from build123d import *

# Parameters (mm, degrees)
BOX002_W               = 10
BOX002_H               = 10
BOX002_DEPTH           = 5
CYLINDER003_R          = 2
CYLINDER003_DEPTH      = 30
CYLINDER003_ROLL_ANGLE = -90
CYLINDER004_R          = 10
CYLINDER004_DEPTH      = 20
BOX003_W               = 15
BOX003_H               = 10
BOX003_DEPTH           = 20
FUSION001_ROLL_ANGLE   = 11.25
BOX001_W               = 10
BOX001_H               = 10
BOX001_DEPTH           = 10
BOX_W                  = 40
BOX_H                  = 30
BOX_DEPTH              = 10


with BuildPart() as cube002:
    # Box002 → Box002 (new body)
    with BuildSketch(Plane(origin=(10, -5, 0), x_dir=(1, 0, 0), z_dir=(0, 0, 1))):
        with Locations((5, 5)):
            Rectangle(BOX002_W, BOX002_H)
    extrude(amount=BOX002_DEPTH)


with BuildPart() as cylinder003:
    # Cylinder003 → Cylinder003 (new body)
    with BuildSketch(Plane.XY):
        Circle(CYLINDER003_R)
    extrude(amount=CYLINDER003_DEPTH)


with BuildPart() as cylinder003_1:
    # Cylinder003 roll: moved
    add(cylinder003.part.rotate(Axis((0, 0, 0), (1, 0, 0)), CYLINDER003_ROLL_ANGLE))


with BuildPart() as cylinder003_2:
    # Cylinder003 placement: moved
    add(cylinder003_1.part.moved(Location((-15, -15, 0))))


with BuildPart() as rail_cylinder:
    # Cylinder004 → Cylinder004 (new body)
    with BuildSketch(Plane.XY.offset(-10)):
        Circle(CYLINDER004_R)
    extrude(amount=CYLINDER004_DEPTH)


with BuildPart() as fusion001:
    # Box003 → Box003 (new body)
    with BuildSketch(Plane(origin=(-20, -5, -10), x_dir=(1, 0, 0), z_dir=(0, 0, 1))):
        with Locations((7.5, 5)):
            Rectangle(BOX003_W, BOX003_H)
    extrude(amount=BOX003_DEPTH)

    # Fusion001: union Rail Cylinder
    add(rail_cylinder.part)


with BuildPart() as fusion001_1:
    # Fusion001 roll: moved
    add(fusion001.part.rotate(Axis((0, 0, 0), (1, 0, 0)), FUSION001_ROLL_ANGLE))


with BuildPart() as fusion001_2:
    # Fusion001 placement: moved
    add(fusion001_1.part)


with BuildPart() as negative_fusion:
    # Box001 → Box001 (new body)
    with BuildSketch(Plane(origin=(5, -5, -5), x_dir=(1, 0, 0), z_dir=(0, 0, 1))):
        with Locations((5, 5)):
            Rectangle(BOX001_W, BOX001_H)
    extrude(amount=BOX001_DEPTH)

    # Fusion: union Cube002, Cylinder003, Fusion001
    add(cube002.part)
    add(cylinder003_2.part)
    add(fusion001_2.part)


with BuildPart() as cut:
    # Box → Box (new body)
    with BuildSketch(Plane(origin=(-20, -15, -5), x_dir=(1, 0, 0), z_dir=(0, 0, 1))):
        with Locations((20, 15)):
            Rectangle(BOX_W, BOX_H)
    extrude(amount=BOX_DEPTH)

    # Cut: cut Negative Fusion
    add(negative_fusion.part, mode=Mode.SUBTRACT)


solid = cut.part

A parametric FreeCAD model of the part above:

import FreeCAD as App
import Part
import Sketcher

V = App.Vector

doc = App.newDocument("Part")
body = doc.addObject("PartDesign::Body", "Body")

# Sketch on XY plane
sketch1 = body.newObject("Sketcher::SketchObject", "Sketch")
sketch1.AttachmentSupport = (doc.getObject("XY_Plane"), [""])
sketch1.MapMode = "FlatFace"
sketch1.addGeometry(Part.LineSegment(V(10, 5, 0), V(10, -5, 0)), False)
sketch1.addGeometry(Part.LineSegment(V(10, -5, 0), V(20, -5, 0)), False)
sketch1.addGeometry(Part.LineSegment(V(20, -5, 0), V(20, 5, 0)), False)
sketch1.addGeometry(Part.LineSegment(V(20, 5, 0), V(10, 5, 0)), False)
sketch1.addConstraint(Sketcher.Constraint("Coincident", 0, 2, 1, 1))
sketch1.addConstraint(Sketcher.Constraint("Coincident", 1, 2, 2, 1))
sketch1.addConstraint(Sketcher.Constraint("Coincident", 2, 2, 3, 1))
sketch1.addConstraint(Sketcher.Constraint("Coincident", 3, 2, 0, 1))
sketch1.addConstraint(Sketcher.Constraint("Vertical", 0))
sketch1.addConstraint(Sketcher.Constraint("Horizontal", 1))
sketch1.addConstraint(Sketcher.Constraint("Vertical", 2))
sketch1.addConstraint(Sketcher.Constraint("Horizontal", 3))
sketch1.addConstraint(Sketcher.Constraint("Equal", 3, 0))
sketch1.addConstraint(Sketcher.Constraint("DistanceX", 1, 1, 1, 2, 10.0))
sketch1.addConstraint(Sketcher.Constraint("DistanceX", -1, 1, 0, 2, 10.0))
sketch1.addConstraint(Sketcher.Constraint("DistanceY", 0, 2, -1, 1, 5.0))
pad1 = body.newObject("PartDesign::Pad", "Pad")
pad1.Profile = sketch1
pad1.Length = 5
body2 = doc.addObject("PartDesign::Body", "Body001")

# Sketch on XY plane
sketch2 = body2.newObject("Sketcher::SketchObject", "Sketch001")
sketch2.AttachmentSupport = (doc.getObject("XY_Plane001"), [""])
sketch2.MapMode = "FlatFace"
sketch2.addGeometry(Part.Circle(V(0, 0, 0), V(0, 0, 1), 2), False)
sketch2.addConstraint(Sketcher.Constraint("Coincident", 0, 3, -1, 1))
sketch2.addConstraint(Sketcher.Constraint("Diameter", 0, 4.0))
pad2 = body2.newObject("PartDesign::Pad", "Pad001")
pad2.Profile = sketch2
pad2.Length = 30
body3 = doc.addObject("PartDesign::Body", "Body002")
doc.recompute()

body2.Placement = App.Placement(V(0, 0, 0), App.Rotation(V(1, 0, 0), 270))
boolean = body3.newObject("PartDesign::Boolean", "Boolean")
boolean.Type = "Fuse"
boolean.addObjects([body2])
body4 = doc.addObject("PartDesign::Body", "Body003")
doc.recompute()

body3.Placement = App.Placement(V(-15, -15, 0), App.Rotation(V(0, 0, 1), 0))
boolean2 = body4.newObject("PartDesign::Boolean", "Boolean001")
boolean2.Type = "Fuse"
boolean2.addObjects([body3])
body5 = doc.addObject("PartDesign::Body", "Body004")

# Sketch on XY plane
sketch3 = body5.newObject("Sketcher::SketchObject", "Sketch002")
sketch3.AttachmentSupport = (doc.getObject("XY_Plane004"), [""])
sketch3.MapMode = "FlatFace"
sketch3.AttachmentOffset = App.Placement(V(0, 0, -10), App.Rotation())
sketch3.addGeometry(Part.Circle(V(0, 0, 0), V(0, 0, 1), 10), False)
sketch3.addConstraint(Sketcher.Constraint("Coincident", 0, 3, -1, 1))
sketch3.addConstraint(Sketcher.Constraint("Diameter", 0, 20.0))
pad3 = body5.newObject("PartDesign::Pad", "Pad002")
pad3.Profile = sketch3
pad3.Length = 20
body6 = doc.addObject("PartDesign::Body", "Body005")

# Sketch on XY plane
sketch4 = body6.newObject("Sketcher::SketchObject", "Sketch003")
sketch4.AttachmentSupport = (doc.getObject("XY_Plane005"), [""])
sketch4.MapMode = "FlatFace"
sketch4.AttachmentOffset = App.Placement(V(0, 0, -10), App.Rotation())
sketch4.addGeometry(Part.LineSegment(V(-20, 5, 0), V(-20, -5, 0)), False)
sketch4.addGeometry(Part.LineSegment(V(-20, -5, 0), V(-5, -5, 0)), False)
sketch4.addGeometry(Part.LineSegment(V(-5, -5, 0), V(-5, 5, 0)), False)
sketch4.addGeometry(Part.LineSegment(V(-5, 5, 0), V(-20, 5, 0)), False)
sketch4.addConstraint(Sketcher.Constraint("Coincident", 0, 2, 1, 1))
sketch4.addConstraint(Sketcher.Constraint("Coincident", 1, 2, 2, 1))
sketch4.addConstraint(Sketcher.Constraint("Coincident", 2, 2, 3, 1))
sketch4.addConstraint(Sketcher.Constraint("Coincident", 3, 2, 0, 1))
sketch4.addConstraint(Sketcher.Constraint("Vertical", 0))
sketch4.addConstraint(Sketcher.Constraint("Horizontal", 1))
sketch4.addConstraint(Sketcher.Constraint("Vertical", 2))
sketch4.addConstraint(Sketcher.Constraint("Horizontal", 3))
sketch4.addConstraint(Sketcher.Constraint("DistanceX", 1, 1, 1, 2, 15.0))
sketch4.addConstraint(Sketcher.Constraint("DistanceY", 0, 2, 0, 1, 10.0))
sketch4.addConstraint(Sketcher.Constraint("DistanceX", 0, 2, -1, 1, 20.0))
sketch4.addConstraint(Sketcher.Constraint("DistanceY", 0, 2, -1, 1, 5.0))
pad4 = body6.newObject("PartDesign::Pad", "Pad003")
pad4.Profile = sketch4
pad4.Length = 20
doc.recompute()

boolean3 = body6.newObject("PartDesign::Boolean", "Boolean002")
boolean3.Type = "Fuse"
boolean3.addObjects([body5])
body7 = doc.addObject("PartDesign::Body", "Body006")
doc.recompute()

body6.Placement = App.Placement(V(0, 0, 0), App.Rotation(V(1, 0, 0), 11.25))
boolean4 = body7.newObject("PartDesign::Boolean", "Boolean003")
boolean4.Type = "Fuse"
boolean4.addObjects([body6])
body8 = doc.addObject("PartDesign::Body", "Body007")
body8.AllowCompound = True

# Sketch on XY plane
sketch5 = body8.newObject("Sketcher::SketchObject", "Sketch004")
sketch5.AttachmentSupport = (doc.getObject("XY_Plane007"), [""])
sketch5.MapMode = "FlatFace"
sketch5.AttachmentOffset = App.Placement(V(0, 0, -5), App.Rotation())
sketch5.addGeometry(Part.LineSegment(V(5, 5, 0), V(5, -5, 0)), False)
sketch5.addGeometry(Part.LineSegment(V(5, -5, 0), V(15, -5, 0)), False)
sketch5.addGeometry(Part.LineSegment(V(15, -5, 0), V(15, 5, 0)), False)
sketch5.addGeometry(Part.LineSegment(V(15, 5, 0), V(5, 5, 0)), False)
sketch5.addConstraint(Sketcher.Constraint("Coincident", 0, 2, 1, 1))
sketch5.addConstraint(Sketcher.Constraint("Coincident", 1, 2, 2, 1))
sketch5.addConstraint(Sketcher.Constraint("Coincident", 2, 2, 3, 1))
sketch5.addConstraint(Sketcher.Constraint("Coincident", 3, 2, 0, 1))
sketch5.addConstraint(Sketcher.Constraint("Vertical", 0))
sketch5.addConstraint(Sketcher.Constraint("Horizontal", 1))
sketch5.addConstraint(Sketcher.Constraint("Vertical", 2))
sketch5.addConstraint(Sketcher.Constraint("Horizontal", 3))
sketch5.addConstraint(Sketcher.Constraint("Equal", 3, 0))
sketch5.addConstraint(Sketcher.Constraint("DistanceX", 1, 1, 1, 2, 10.0))
sketch5.addConstraint(Sketcher.Constraint("DistanceX", -1, 1, 0, 2, 5.0))
sketch5.addConstraint(Sketcher.Constraint("DistanceY", 0, 2, -1, 1, 5.0))
pad5 = body8.newObject("PartDesign::Pad", "Pad004")
pad5.Profile = sketch5
pad5.Length = 10
doc.recompute()

boolean5 = body8.newObject("PartDesign::Boolean", "Boolean004")
boolean5.Type = "Fuse"
boolean5.addObjects([body])
doc.recompute()

boolean6 = body8.newObject("PartDesign::Boolean", "Boolean005")
boolean6.Type = "Fuse"
boolean6.addObjects([body4])
doc.recompute()

boolean7 = body8.newObject("PartDesign::Boolean", "Boolean006")
boolean7.Type = "Fuse"
boolean7.addObjects([body7])
body9 = doc.addObject("PartDesign::Body", "Body008")

# Sketch on XY plane
sketch6 = body9.newObject("Sketcher::SketchObject", "Sketch005")
sketch6.AttachmentSupport = (doc.getObject("XY_Plane008"), [""])
sketch6.MapMode = "FlatFace"
sketch6.AttachmentOffset = App.Placement(V(0, 0, -5), App.Rotation())
sketch6.addGeometry(Part.LineSegment(V(-20, 15, 0), V(-20, -15, 0)), False)
sketch6.addGeometry(Part.LineSegment(V(-20, -15, 0), V(20, -15, 0)), False)
sketch6.addGeometry(Part.LineSegment(V(20, -15, 0), V(20, 15, 0)), False)
sketch6.addGeometry(Part.LineSegment(V(20, 15, 0), V(-20, 15, 0)), False)
sketch6.addConstraint(Sketcher.Constraint("Coincident", 0, 2, 1, 1))
sketch6.addConstraint(Sketcher.Constraint("Coincident", 1, 2, 2, 1))
sketch6.addConstraint(Sketcher.Constraint("Coincident", 2, 2, 3, 1))
sketch6.addConstraint(Sketcher.Constraint("Coincident", 3, 2, 0, 1))
sketch6.addConstraint(Sketcher.Constraint("Vertical", 0))
sketch6.addConstraint(Sketcher.Constraint("Horizontal", 1))
sketch6.addConstraint(Sketcher.Constraint("Vertical", 2))
sketch6.addConstraint(Sketcher.Constraint("Horizontal", 3))
sketch6.addConstraint(Sketcher.Constraint("Symmetric", 0, 2, 2, 2, -1, 1))
sketch6.addConstraint(Sketcher.Constraint("DistanceX", 1, 1, 1, 2, 40.0))
sketch6.addConstraint(Sketcher.Constraint("DistanceY", 0, 2, 0, 1, 30.0))
pad6 = body9.newObject("PartDesign::Pad", "Pad005")
pad6.Profile = sketch6
pad6.Length = 10
doc.recompute()

boolean8 = body9.newObject("PartDesign::Boolean", "Boolean007")
boolean8.Type = "Cut"
boolean8.addObjects([body8])

doc.recompute()
